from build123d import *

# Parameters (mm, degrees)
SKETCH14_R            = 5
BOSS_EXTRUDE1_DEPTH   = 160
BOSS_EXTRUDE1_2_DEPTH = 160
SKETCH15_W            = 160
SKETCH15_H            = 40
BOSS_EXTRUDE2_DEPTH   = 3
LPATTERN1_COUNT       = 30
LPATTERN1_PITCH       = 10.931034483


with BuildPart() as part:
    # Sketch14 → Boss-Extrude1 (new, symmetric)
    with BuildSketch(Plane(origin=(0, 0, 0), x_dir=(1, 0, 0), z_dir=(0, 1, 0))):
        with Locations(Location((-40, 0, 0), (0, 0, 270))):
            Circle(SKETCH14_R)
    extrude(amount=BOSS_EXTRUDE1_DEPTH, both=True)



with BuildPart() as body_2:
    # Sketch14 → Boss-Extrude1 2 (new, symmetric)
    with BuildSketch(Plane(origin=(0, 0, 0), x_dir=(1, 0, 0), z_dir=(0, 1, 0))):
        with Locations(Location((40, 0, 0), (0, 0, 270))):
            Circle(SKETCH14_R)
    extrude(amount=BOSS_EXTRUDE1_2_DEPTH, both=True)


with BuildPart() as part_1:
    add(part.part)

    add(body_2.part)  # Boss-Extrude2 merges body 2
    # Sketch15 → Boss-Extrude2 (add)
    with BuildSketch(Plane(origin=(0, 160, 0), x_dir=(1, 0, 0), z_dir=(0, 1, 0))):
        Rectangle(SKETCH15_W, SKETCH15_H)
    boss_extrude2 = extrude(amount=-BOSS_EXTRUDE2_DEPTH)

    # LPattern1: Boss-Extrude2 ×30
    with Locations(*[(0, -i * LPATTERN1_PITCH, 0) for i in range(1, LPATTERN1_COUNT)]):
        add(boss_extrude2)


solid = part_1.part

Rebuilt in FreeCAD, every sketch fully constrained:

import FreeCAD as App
import Part
import Sketcher
Q = App.Units.Quantity


def add_polygon(sketch, points):
    """Adds a closed chain of lines whose ends are joined by coincident constraints."""
    first, n = sketch.GeometryCount, len(points)
    for a, b in zip(points, points[1:] + points[:1]):
        sketch.addGeometry(Part.LineSegment(App.Vector(*a, 0), App.Vector(*b, 0)), False)
    for i in range(n):
        sketch.addConstraint(Sketcher.Constraint("Coincident", first + i, 2, first + (i + 1) % n, 1))

doc = App.newDocument("Part")
params = doc.addObject("Spreadsheet::Sheet", "Params")
for row, (alias, value) in enumerate([
    ("sketch1_diameter", "10 mm"),
    ("pad1_length", "320 mm"),
    ("sketch2_diameter", "10 mm"),
    ("pad2_length", "320 mm"),
    ("sketch3_width", "160 mm"),
    ("sketch3_height", "40 mm"),
    ("pad3_length", "3 mm"),
    ("linearpattern_pitch", "10.931034 mm"),
], start=1):
    params.set(f"A{row}", alias)
    params.set(f"B{row}", "=" + value)
    params.setAlias(f"B{row}", alias)

body = doc.addObject("PartDesign::Body", "Body")

sketch1 = doc.addObject("Sketcher::SketchObject", "Sketch")
body.addObject(sketch1)
sketch1.AttachmentSupport = (doc.XZ_Plane, [""])
sketch1.MapMode = "FlatFace"
sketch1.addGeometry(Part.Circle(App.Vector(-40, 0, 0), App.Vector(0, 0, 1), 5), False)
sketch1.addConstraint([
    Sketcher.Constraint("PointOnObject", 0, 3, -1),
    Sketcher.Constraint("Diameter", 0, Q("10 mm")),
    Sketcher.Constraint("DistanceX", 0, 3, -1, 1, Q("40 mm")),
])
sketch1.setExpression("Constraints[1]", "Params.sketch1_diameter")
pad1 = doc.addObject("PartDesign::Pad", "Pad")
body.addObject(pad1)
pad1.Profile = sketch1
pad1.setExpression("Length", "Params.pad1_length")
pad1.Midplane = True
body2 = doc.addObject("PartDesign::Body", "Body001")

sketch2 = doc.addObject("Sketcher::SketchObject", "Sketch001")
body2.addObject(sketch2)
sketch2.AttachmentSupport = (doc.getObject("XZ_Plane001"), [""])
sketch2.MapMode = "FlatFace"
sketch2.addGeometry(Part.Circle(App.Vector(40, 0, 0), App.Vector(0, 0, 1), 5), False)
sketch2.addConstraint([
    Sketcher.Constraint("PointOnObject", 0, 3, -1),
    Sketcher.Constraint("Diameter", 0, Q("10 mm")),
    Sketcher.Constraint("DistanceX", -1, 1, 0, 3, Q("40 mm")),
])
sketch2.setExpression("Constraints[1]", "Params.sketch2_diameter")
pad2 = doc.addObject("PartDesign::Pad", "Pad001")
body2.addObject(pad2)
pad2.Profile = sketch2
pad2.setExpression("Length", "Params.pad2_length")
pad2.Midplane = True
body.AllowCompound = True
doc.recompute()

boolean = doc.addObject("PartDesign::Boolean", "Boolean")
body.addObject(boolean)
boolean.Type = "Fuse"
boolean.addObjects([body2])

sketch3 = doc.addObject("Sketcher::SketchObject", "Sketch002")
body.addObject(sketch3)
sketch3.AttachmentSupport = (doc.XZ_Plane, [""])
sketch3.MapMode = "FlatFace"
sketch3.AttachmentOffset = App.Placement(App.Vector(0, 0, -160), App.Rotation())
add_polygon(sketch3, [(-80, -20), (-80, 20), (80, 20), (80, -20)])
sketch3.addConstraint([
    Sketcher.Constraint("Vertical", 0),
    Sketcher.Constraint("Horizontal", 1),
    Sketcher.Constraint("Vertical", 2),
    Sketcher.Constraint("Horizontal", 3),
    Sketcher.Constraint("Symmetric", 0, 2, 2, 2, -1, 1),
    Sketcher.Constraint("DistanceX", 1, 1, 1, 2, Q("160 mm")),
    Sketcher.Constraint("DistanceY", 0, 1, 0, 2, Q("40 mm")),
])
sketch3.setExpression("Constraints[9]", "Params.sketch3_width")
sketch3.setExpression("Constraints[10]", "Params.sketch3_height")
pad3 = doc.addObject("PartDesign::Pad", "Pad002")
body.addObject(pad3)
pad3.Profile = sketch3
pad3.setExpression("Length", "Params.pad3_length")
doc.recompute()

linearpattern = doc.addObject("PartDesign::LinearPattern", "LinearPattern")
body.addObject(linearpattern)
linearpattern.Originals = [pad3]
linearpattern.Direction = (doc.Y_Axis, [""])
linearpattern.Mode = "offset"
linearpattern.setExpression("Offset", "Params.linearpattern_pitch")
linearpattern.Occurrences = 30
linearpattern.Reversed = True
body.Tip = linearpattern

doc.recompute()
